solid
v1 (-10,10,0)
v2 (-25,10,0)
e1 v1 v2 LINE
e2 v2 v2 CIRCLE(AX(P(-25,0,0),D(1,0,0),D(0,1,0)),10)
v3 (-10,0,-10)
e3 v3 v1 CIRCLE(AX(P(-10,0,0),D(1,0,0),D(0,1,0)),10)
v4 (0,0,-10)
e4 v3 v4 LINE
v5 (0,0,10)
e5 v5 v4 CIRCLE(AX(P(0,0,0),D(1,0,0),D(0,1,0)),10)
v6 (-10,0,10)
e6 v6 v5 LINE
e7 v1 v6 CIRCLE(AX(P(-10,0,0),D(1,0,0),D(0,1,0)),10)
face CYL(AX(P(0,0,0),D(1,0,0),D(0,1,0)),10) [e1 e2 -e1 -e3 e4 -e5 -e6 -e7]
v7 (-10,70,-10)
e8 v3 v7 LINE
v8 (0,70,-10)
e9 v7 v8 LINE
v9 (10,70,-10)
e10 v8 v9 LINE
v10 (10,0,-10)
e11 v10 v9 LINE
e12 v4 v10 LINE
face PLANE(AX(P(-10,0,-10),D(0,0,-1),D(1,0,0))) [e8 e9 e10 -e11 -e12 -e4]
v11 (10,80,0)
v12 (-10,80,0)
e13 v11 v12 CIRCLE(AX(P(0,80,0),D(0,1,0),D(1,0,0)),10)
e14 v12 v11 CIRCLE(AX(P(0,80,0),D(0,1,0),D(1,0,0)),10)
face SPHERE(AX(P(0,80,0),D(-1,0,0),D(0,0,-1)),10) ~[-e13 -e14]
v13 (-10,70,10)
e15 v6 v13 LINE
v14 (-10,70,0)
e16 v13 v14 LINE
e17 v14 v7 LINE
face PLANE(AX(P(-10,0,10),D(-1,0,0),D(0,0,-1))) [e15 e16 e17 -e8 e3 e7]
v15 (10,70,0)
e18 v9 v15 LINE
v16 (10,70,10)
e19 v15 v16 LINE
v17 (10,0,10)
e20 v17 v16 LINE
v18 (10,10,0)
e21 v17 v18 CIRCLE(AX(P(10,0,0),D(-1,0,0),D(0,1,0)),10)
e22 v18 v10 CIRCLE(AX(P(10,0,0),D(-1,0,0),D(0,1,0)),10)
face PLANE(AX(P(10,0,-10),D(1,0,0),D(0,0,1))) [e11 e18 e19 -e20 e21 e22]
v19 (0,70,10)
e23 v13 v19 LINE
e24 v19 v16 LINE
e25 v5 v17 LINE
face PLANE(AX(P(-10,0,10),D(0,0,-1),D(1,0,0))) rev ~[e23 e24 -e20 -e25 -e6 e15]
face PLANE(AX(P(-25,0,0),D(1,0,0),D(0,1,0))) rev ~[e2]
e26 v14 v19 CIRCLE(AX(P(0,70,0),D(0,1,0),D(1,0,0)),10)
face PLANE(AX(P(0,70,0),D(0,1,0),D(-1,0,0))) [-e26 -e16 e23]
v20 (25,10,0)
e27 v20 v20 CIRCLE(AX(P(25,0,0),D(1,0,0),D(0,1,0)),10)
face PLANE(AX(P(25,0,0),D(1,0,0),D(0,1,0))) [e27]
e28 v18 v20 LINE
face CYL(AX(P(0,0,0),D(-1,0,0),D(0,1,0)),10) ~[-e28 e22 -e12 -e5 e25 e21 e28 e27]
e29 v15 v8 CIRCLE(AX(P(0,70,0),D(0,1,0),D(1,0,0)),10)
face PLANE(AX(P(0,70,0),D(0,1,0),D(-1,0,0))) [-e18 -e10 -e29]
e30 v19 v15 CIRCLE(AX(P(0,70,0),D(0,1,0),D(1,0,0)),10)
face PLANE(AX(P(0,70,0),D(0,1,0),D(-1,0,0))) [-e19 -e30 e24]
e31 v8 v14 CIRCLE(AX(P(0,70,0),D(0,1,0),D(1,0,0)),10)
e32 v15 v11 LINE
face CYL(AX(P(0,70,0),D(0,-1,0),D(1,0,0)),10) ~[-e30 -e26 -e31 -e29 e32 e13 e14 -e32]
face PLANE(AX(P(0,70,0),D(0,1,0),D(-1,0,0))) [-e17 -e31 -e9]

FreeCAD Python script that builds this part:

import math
import FreeCAD as App
import Part
import Sketcher
from FreeCAD import Vector
Q = App.Units.Quantity

doc = App.newDocument("Part")
body = doc.addObject("PartDesign::Body", "Body")

# Sketch on YZ plane
sketch1 = doc.addObject("Sketcher::SketchObject", "Sketch")
body.addObject(sketch1)
sketch1.AttachmentSupport = (doc.YZ_Plane, [""])
sketch1.MapMode = "FlatFace"
sketch1.addGeometry(Part.Circle(Vector(0, 0, 0), Vector(0, 0, 1), 10), False)
sketch1.addConstraint([
    Sketcher.Constraint("Coincident", 0, 3, -1, 1),
    Sketcher.Constraint("Diameter", 0, Q("20 mm")),
])
pad1 = doc.addObject("PartDesign::Pad", "Pad")
body.addObject(pad1)
pad1.Profile = sketch1
pad1.Length = 50
pad1.Midplane = True

# Sketch on XZ plane
sketch2 = doc.addObject("Sketcher::SketchObject", "Sketch001")
body.addObject(sketch2)
sketch2.AttachmentSupport = (doc.XZ_Plane, [""])
sketch2.MapMode = "FlatFace"
sketch2.addGeometry([
    Part.LineSegment(Vector(-10, -10, 0), Vector(-10, 10, 0)),
    Part.LineSegment(Vector(-10, 10, 0), Vector(10, 10, 0)),
    Part.LineSegment(Vector(10, 10, 0), Vector(10, -10, 0)),
    Part.LineSegment(Vector(10, -10, 0), Vector(-10, -10, 0)),
], False)
sketch2.addConstraint([
    Sketcher.Constraint("Coincident", 0, 2, 1, 1),
    Sketcher.Constraint("Coincident", 1, 2, 2, 1),
    Sketcher.Constraint("Coincident", 2, 2, 3, 1),
    Sketcher.Constraint("Coincident", 3, 2, 0, 1),
    Sketcher.Constraint("Vertical", 0),
    Sketcher.Constraint("Horizontal", 1),
    Sketcher.Constraint("Vertical", 2),
    Sketcher.Constraint("Horizontal", 3),
    Sketcher.Constraint("Symmetric", 0, 2, 2, 2, -1, 1),
    Sketcher.Constraint("Equal", 3, 0),
    Sketcher.Constraint("DistanceX", 1, 1, 1, 2, Q("20 mm")),
])
pad2 = doc.addObject("PartDesign::Pad", "Pad001")
body.addObject(pad2)
pad2.Profile = sketch2
pad2.Length = 70
pad2.Reversed = True

# Sketch on XZ plane
sketch3 = doc.addObject("Sketcher::SketchObject", "Sketch002")
body.addObject(sketch3)
sketch3.AttachmentSupport = (doc.XZ_Plane, [""])
sketch3.MapMode = "FlatFace"
sketch3.AttachmentOffset = App.Placement(Vector(0, 0, -70), App.Rotation())
sketch3.addGeometry(Part.Circle(Vector(0, 0, 0), Vector(0, 0, 1), 10), False)
sketch3.addConstraint([
    Sketcher.Constraint("Coincident", 0, 3, -1, 1),
    Sketcher.Constraint("Diameter", 0, Q("20 mm")),
])
pad3 = doc.addObject("PartDesign::Pad", "Pad002")
body.addObject(pad3)
pad3.Profile = sketch3
pad3.Length = 10
pad3.Reversed = True

# Sketch on XZ plane
sketch4 = doc.addObject("Sketcher::SketchObject", "Sketch003")
body.addObject(sketch4)
sketch4.AttachmentSupport = (doc.XZ_Plane, [""])
sketch4.MapMode = "FlatFace"
sketch4.AttachmentOffset = App.Placement(Vector(0, 0, -80), App.Rotation())
sketch4.addGeometry([
    Part.LineSegment(Vector(-10, 0, 0), Vector(10, 0, 0)),
    Part.ArcOfCircle(Part.Circle(Vector(0, 0, 0), Vector(0, 0, 1), 10), math.radians(180), math.radians(360)),
], False)
sketch4.addConstraint([
    Sketcher.Constraint("Coincident", 0, 1, 1, 1),
    Sketcher.Constraint("Coincident", 1, 2, 0, 2),
    Sketcher.Constraint("Horizontal", 0),
    Sketcher.Constraint("Coincident", 1, 3, -1, 1),
    Sketcher.Constraint("PointOnObject", 0, 1, -1),
    Sketcher.Constraint("Radius", 1, Q("10 mm")),
])
revolution = doc.addObject("PartDesign::Revolution", "Revolution")
body.addObject(revolution)
revolution.Profile = sketch4
revolution.ReferenceAxis = (sketch4, ["H_Axis"])
revolution.Angle = 360

doc.recompute()
